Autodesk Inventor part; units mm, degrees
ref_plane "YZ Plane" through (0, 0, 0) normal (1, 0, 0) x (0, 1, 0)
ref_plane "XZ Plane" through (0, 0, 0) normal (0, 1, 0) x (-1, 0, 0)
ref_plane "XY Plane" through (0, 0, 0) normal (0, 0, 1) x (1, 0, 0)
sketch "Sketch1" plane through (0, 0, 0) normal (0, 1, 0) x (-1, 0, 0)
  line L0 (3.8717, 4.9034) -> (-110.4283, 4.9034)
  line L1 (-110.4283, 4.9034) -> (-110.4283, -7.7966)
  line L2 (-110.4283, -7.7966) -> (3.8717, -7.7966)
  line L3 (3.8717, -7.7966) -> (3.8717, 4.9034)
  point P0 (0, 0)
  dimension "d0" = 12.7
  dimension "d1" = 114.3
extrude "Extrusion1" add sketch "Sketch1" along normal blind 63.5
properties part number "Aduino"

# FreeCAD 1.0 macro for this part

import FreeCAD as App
import Part
import Sketcher
from FreeCAD import Vector
Q = App.Units.Quantity


def add_polygon(sketch, points):
    """Adds a closed chain of lines whose ends are joined by coincident constraints."""
    first, n = sketch.GeometryCount, len(points)
    for a, b in zip(points, points[1:] + points[:1]):
        sketch.addGeometry(Part.LineSegment(App.Vector(*a, 0), App.Vector(*b, 0)), False)
    for i in range(n):
        sketch.addConstraint(Sketcher.Constraint("Coincident", first + i, 2, first + (i + 1) % n, 1))

doc = App.newDocument("Part")
body = doc.addObject("PartDesign::Body", "Body")

sketch1 = body.newObject("Sketcher::SketchObject", "Sketch")
sketch1.AttachmentSupport = (doc.getObject("XZ_Plane"), [""])
sketch1.MapMode = "FlatFace"
add_polygon(sketch1, [(-4, -8), (-4, 5), (110, 5), (110, -8)])
sketch1.addConstraint([
    Sketcher.Constraint("Vertical", 0),
    Sketcher.Constraint("Horizontal", 1),
    Sketcher.Constraint("Vertical", 2),
    Sketcher.Constraint("Horizontal", 3),
    Sketcher.Constraint("DistanceX", 1, 1, 1, 2, Q("4.5 in")),
    Sketcher.Constraint("DistanceY", 0, 1, 0, 2, Q("0.5 in")),
    Sketcher.Constraint("DistanceX", 0, 2, -1, 1, Q("3.8717 mm")),
    Sketcher.Constraint("DistanceY", -1, 1, 0, 2, Q("4.9034 mm")),
])
pad1 = body.newObject("PartDesign::Pad", "Pad")
pad1.Profile = sketch1
pad1.Length = Q("2.5 in")
pad1.Reversed = True

doc.recompute()
